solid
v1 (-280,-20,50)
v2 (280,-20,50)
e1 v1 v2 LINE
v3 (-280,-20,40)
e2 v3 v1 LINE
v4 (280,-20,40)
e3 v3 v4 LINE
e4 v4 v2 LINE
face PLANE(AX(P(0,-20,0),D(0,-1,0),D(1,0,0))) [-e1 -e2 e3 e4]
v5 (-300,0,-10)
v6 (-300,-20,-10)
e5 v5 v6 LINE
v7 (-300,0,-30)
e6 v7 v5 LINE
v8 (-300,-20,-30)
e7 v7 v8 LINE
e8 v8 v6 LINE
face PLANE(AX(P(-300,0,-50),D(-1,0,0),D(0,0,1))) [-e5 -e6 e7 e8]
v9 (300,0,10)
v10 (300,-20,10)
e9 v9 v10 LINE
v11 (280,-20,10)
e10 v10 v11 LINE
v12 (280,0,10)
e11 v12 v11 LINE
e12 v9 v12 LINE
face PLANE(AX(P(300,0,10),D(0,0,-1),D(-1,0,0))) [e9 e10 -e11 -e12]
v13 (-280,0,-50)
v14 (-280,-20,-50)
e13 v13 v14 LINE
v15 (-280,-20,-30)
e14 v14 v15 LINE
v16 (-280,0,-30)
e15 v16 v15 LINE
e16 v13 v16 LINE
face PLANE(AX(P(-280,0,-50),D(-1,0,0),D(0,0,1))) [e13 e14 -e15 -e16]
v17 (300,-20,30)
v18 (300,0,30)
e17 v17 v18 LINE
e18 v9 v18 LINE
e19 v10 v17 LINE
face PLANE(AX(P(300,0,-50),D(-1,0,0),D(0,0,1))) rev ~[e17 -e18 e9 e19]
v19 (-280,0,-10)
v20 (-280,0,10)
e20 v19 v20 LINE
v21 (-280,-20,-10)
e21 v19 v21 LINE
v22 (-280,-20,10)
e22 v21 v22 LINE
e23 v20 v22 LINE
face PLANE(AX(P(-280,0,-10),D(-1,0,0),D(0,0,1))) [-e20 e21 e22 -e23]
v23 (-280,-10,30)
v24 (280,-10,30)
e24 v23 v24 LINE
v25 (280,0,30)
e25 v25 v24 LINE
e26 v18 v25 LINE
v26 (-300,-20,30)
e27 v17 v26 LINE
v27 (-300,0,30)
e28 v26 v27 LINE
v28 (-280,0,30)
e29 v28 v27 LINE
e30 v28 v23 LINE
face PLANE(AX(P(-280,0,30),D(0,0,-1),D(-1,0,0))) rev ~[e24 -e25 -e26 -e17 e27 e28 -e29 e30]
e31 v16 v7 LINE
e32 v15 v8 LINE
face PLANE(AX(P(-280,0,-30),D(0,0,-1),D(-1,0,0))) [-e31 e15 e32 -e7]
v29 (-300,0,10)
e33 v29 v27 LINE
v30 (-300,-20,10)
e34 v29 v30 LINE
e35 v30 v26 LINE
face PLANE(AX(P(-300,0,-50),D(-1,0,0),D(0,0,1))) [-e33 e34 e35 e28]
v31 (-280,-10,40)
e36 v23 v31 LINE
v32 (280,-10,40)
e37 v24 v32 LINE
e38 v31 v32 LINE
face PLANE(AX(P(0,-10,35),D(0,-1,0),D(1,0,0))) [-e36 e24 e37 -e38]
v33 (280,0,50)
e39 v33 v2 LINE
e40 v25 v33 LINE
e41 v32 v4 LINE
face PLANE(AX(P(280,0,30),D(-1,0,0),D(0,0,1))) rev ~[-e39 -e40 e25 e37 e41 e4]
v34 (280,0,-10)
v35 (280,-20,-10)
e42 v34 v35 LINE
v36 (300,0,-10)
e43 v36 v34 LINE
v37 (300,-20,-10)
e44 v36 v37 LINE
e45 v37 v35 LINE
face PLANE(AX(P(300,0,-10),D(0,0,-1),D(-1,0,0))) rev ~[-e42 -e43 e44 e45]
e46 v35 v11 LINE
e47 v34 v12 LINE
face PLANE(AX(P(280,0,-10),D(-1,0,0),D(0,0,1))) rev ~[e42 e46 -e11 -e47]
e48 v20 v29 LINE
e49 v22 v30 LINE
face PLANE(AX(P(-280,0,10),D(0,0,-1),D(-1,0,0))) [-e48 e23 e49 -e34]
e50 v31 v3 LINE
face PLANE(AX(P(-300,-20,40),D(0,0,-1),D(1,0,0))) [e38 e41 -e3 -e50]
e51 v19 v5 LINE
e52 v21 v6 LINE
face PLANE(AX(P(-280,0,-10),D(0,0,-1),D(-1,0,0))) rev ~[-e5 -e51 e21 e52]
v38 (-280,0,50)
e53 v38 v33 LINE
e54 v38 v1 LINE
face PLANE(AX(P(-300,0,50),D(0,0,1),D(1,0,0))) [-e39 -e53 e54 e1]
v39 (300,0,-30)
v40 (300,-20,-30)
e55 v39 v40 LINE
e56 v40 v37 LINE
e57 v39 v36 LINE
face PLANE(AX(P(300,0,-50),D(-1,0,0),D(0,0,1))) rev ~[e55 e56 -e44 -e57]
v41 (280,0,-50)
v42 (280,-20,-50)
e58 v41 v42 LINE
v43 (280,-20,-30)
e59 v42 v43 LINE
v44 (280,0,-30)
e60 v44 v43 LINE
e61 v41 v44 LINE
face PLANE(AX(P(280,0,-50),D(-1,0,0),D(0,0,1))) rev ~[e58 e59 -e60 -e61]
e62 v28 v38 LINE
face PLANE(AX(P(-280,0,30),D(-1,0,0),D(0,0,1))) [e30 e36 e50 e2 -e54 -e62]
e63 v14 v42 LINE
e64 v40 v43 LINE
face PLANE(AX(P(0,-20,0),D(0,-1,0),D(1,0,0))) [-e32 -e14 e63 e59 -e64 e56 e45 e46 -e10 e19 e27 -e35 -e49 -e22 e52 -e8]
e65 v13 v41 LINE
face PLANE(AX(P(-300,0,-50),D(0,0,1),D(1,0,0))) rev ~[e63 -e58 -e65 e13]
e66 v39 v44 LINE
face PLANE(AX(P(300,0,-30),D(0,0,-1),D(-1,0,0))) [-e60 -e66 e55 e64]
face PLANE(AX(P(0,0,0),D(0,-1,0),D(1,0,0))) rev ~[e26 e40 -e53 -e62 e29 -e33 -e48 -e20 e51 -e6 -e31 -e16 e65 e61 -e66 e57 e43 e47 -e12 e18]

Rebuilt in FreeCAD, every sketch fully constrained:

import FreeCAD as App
import Part
import Sketcher
Q = App.Units.Quantity

doc = App.newDocument("Part")
body = doc.addObject("PartDesign::Body", "Body")

sketch1 = body.newObject("Sketcher::SketchObject", "Sketch")
sketch1.AttachmentSupport = (doc.getObject("XZ_Plane"), [""])
sketch1.MapMode = "FlatFace"
sketch1.addGeometry(Part.LineSegment(App.Vector(-300, 50, 0), App.Vector(-300, -50, 0)), False)
sketch1.addGeometry(Part.LineSegment(App.Vector(-300, -50, 0), App.Vector(300, -50, 0)), False)
sketch1.addGeometry(Part.LineSegment(App.Vector(300, -50, 0), App.Vector(300, 50, 0)), False)
sketch1.addGeometry(Part.LineSegment(App.Vector(300, 50, 0), App.Vector(-300, 50, 0)), False)
sketch1.addConstraint(Sketcher.Constraint("Coincident", 0, 2, 1, 1))
sketch1.addConstraint(Sketcher.Constraint("Coincident", 1, 2, 2, 1))
sketch1.addConstraint(Sketcher.Constraint("Coincident", 2, 2, 3, 1))
sketch1.addConstraint(Sketcher.Constraint("Coincident", 3, 2, 0, 1))
sketch1.addConstraint(Sketcher.Constraint("Vertical", 0))
sketch1.addConstraint(Sketcher.Constraint("Horizontal", 1))
sketch1.addConstraint(Sketcher.Constraint("Vertical", 2))
sketch1.addConstraint(Sketcher.Constraint("Horizontal", 3))
sketch1.addConstraint(Sketcher.Constraint("Symmetric", 0, 2, 2, 2, -1, 1))
sketch1.addConstraint(Sketcher.Constraint("DistanceX", 1, 1, 1, 2, Q("600 mm")))
sketch1.addConstraint(Sketcher.Constraint("DistanceY", 0, 2, 0, 1, Q("100 mm")))
pad1 = body.newObject("PartDesign::Pad", "Pad")
pad1.Profile = sketch1
pad1.Length = 20

sketch2 = body.newObject("Sketcher::SketchObject", "Sketch001")
sketch2.AttachmentSupport = (doc.getObject("XZ_Plane"), [""])
sketch2.MapMode = "FlatFace"
sketch2.addGeometry(Part.LineSegment(App.Vector(300, -30, 0), App.Vector(300, -50, 0)), False)
sketch2.addGeometry(Part.LineSegment(App.Vector(300, -50, 0), App.Vector(280, -50, 0)), False)
sketch2.addGeometry(Part.LineSegment(App.Vector(280, -50, 0), App.Vector(280, -30, 0)), False)
sketch2.addGeometry(Part.LineSegment(App.Vector(280, -30, 0), App.Vector(300, -30, 0)), False)
sketch2.addGeometry(Part.LineSegment(App.Vector(300, 10, 0), App.Vector(300, -10, 0)), False)
sketch2.addGeometry(Part.LineSegment(App.Vector(300, -10, 0), App.Vector(280, -10, 0)), False)
sketch2.addGeometry(Part.LineSegment(App.Vector(280, -10, 0), App.Vector(280, 10, 0)), False)
sketch2.addGeometry(Part.LineSegment(App.Vector(280, 10, 0), App.Vector(300, 10, 0)), False)
sketch2.addGeometry(Part.LineSegment(App.Vector(-280, 10, 0), App.Vector(-280, -10, 0)), False)
sketch2.addGeometry(Part.LineSegment(App.Vector(-280, -10, 0), App.Vector(-300, -10, 0)), False)
sketch2.addGeometry(Part.LineSegment(App.Vector(-300, -10, 0), App.Vector(-300, 10, 0)), False)
sketch2.addGeometry(Part.LineSegment(App.Vector(-300, 10, 0), App.Vector(-280, 10, 0)), False)
sketch2.addGeometry(Part.LineSegment(App.Vector(-280, -30, 0), App.Vector(-280, -50, 0)), False)
sketch2.addGeometry(Part.LineSegment(App.Vector(-280, -50, 0), App.Vector(-300, -50, 0)), False)
sketch2.addGeometry(Part.LineSegment(App.Vector(-300, -50, 0), App.Vector(-300, -30, 0)), False)
sketch2.addGeometry(Part.LineSegment(App.Vector(-300, -30, 0), App.Vector(-280, -30, 0)), False)
sketch2.addGeometry(Part.LineSegment(App.Vector(-280, 50, 0), App.Vector(-280, 30, 0)), False)
sketch2.addGeometry(Part.LineSegment(App.Vector(-280, 30, 0), App.Vector(-300, 30, 0)), False)
sketch2.addGeometry(Part.LineSegment(App.Vector(-300, 30, 0), App.Vector(-300, 50, 0)), False)
sketch2.addGeometry(Part.LineSegment(App.Vector(-300, 50, 0), App.Vector(-280, 50, 0)), False)
sketch2.addGeometry(Part.LineSegment(App.Vector(300, 50, 0), App.Vector(300, 30, 0)), False)
sketch2.addGeometry(Part.LineSegment(App.Vector(300, 30, 0), App.Vector(280, 30, 0)), False)
sketch2.addGeometry(Part.LineSegment(App.Vector(280, 30, 0), App.Vector(280, 50, 0)), False)
sketch2.addGeometry(Part.LineSegment(App.Vector(280, 50, 0), App.Vector(300, 50, 0)), False)
sketch2.addConstraint(Sketcher.Constraint("Coincident", 0, 2, 1, 1))
sketch2.addConstraint(Sketcher.Constraint("Coincident", 1, 2, 2, 1))
sketch2.addConstraint(Sketcher.Constraint("Coincident", 2, 2, 3, 1))
sketch2.addConstraint(Sketcher.Constraint("Coincident", 3, 2, 0, 1))
sketch2.addConstraint(Sketcher.Constraint("Coincident", 4, 2, 5, 1))
sketch2.addConstraint(Sketcher.Constraint("Coincident", 5, 2, 6, 1))
sketch2.addConstraint(Sketcher.Constraint("Coincident", 6, 2, 7, 1))
sketch2.addConstraint(Sketcher.Constraint("Coincident", 7, 2, 4, 1))
sketch2.addConstraint(Sketcher.Constraint("Coincident", 8, 2, 9, 1))
sketch2.addConstraint(Sketcher.Constraint("Coincident", 9, 2, 10, 1))
sketch2.addConstraint(Sketcher.Constraint("Coincident", 10, 2, 11, 1))
sketch2.addConstraint(Sketcher.Constraint("Coincident", 11, 2, 8, 1))
sketch2.addConstraint(Sketcher.Constraint("Coincident", 12, 2, 13, 1))
sketch2.addConstraint(Sketcher.Constraint("Coincident", 13, 2, 14, 1))
sketch2.addConstraint(Sketcher.Constraint("Coincident", 14, 2, 15, 1))
sketch2.addConstraint(Sketcher.Constraint("Coincident", 15, 2, 12, 1))
sketch2.addConstraint(Sketcher.Constraint("Coincident", 16, 2, 17, 1))
sketch2.addConstraint(Sketcher.Constraint("Coincident", 17, 2, 18, 1))
sketch2.addConstraint(Sketcher.Constraint("Coincident", 18, 2, 19, 1))
sketch2.addConstraint(Sketcher.Constraint("Coincident", 19, 2, 16, 1))
sketch2.addConstraint(Sketcher.Constraint("Coincident", 20, 2, 21, 1))
sketch2.addConstraint(Sketcher.Constraint("Coincident", 21, 2, 22, 1))
sketch2.addConstraint(Sketcher.Constraint("Coincident", 22, 2, 23, 1))
sketch2.addConstraint(Sketcher.Constraint("Coincident", 23, 2, 20, 1))
sketch2.addConstraint(Sketcher.Constraint("Vertical", 0))
sketch2.addConstraint(Sketcher.Constraint("Horizontal", 1))
sketch2.addConstraint(Sketcher.Constraint("Vertical", 2))
sketch2.addConstraint(Sketcher.Constraint("Horizontal", 3))
sketch2.addConstraint(Sketcher.Constraint("Vertical", 4))
sketch2.addConstraint(Sketcher.Constraint("Horizontal", 5))
sketch2.addConstraint(Sketcher.Constraint("Vertical", 6))
sketch2.addConstraint(Sketcher.Constraint("Horizontal", 7))
sketch2.addConstraint(Sketcher.Constraint("Vertical", 8))
sketch2.addConstraint(Sketcher.Constraint("Horizontal", 9))
sketch2.addConstraint(Sketcher.Constraint("Vertical", 10))
sketch2.addConstraint(Sketcher.Constraint("Horizontal", 11))
sketch2.addConstraint(Sketcher.Constraint("Vertical", 12))
sketch2.addConstraint(Sketcher.Constraint("Horizontal", 13))
sketch2.addConstraint(Sketcher.Constraint("Vertical", 14))
sketch2.addConstraint(Sketcher.Constraint("Horizontal", 15))
sketch2.addConstraint(Sketcher.Constraint("Vertical", 16))
sketch2.addConstraint(Sketcher.Constraint("Horizontal", 17))
sketch2.addConstraint(Sketcher.Constraint("Vertical", 18))
sketch2.addConstraint(Sketcher.Constraint("Horizontal", 19))
sketch2.addConstraint(Sketcher.Constraint("Vertical", 20))
sketch2.addConstraint(Sketcher.Constraint("Horizontal", 21))
sketch2.addConstraint(Sketcher.Constraint("Vertical", 22))
sketch2.addConstraint(Sketcher.Constraint("Horizontal", 23))
sketch2.addConstraint(Sketcher.Constraint("Symmetric", 6, 2, 8, 2, -1, 1))
sketch2.addConstraint(Sketcher.Constraint("Symmetric", 4, 2, 10, 2, -1, 1))
sketch2.addConstraint(Sketcher.Constraint("Symmetric", 2, 2, 16, 2, -1, 1))
sketch2.addConstraint(Sketcher.Constraint("Symmetric", 0, 2, 18, 2, -1, 1))
sketch2.addConstraint(Sketcher.Constraint("Symmetric", 14, 2, 20, 2, -1, 1))
sketch2.addConstraint(Sketcher.Constraint("Symmetric", 12, 2, 22, 2, -1, 1))
sketch2.addConstraint(Sketcher.Constraint("Symmetric", 1, 2, 12, 2, -2))
sketch2.addConstraint(Sketcher.Constraint("Symmetric", 3, 2, 14, 2, -2))
sketch2.addConstraint(Sketcher.Constraint("Horizontal", 5, 2, 8, 2))
sketch2.addConstraint(Sketcher.Constraint("Vertical", 3, 2, 4, 2))
sketch2.addConstraint(Sketcher.Constraint("Vertical", 2, 2, 5, 2))
sketch2.addConstraint(Sketcher.Constraint("Equal", 23, 0))
sketch2.addConstraint(Sketcher.Constraint("Equal", 2, 4))
sketch2.addConstraint(Sketcher.Constraint("DistanceX", 1, 2, 1, 1, Q("20 mm")))
sketch2.addConstraint(Sketcher.Constraint("DistanceX", -1, 1, 0, 2, Q("300 mm")))
sketch2.addConstraint(Sketcher.Constraint("DistanceY", 0, 2, -1, 1, Q("50 mm")))
pocket1 = body.newObject("PartDesign::Pocket", "Pocket")
pocket1.Profile = sketch2
pocket1.Type = "ThroughAll"
pocket1.Reversed = True

sketch3 = body.newObject("Sketcher::SketchObject", "Sketch002")
sketch3.AttachmentSupport = (doc.getObject("XZ_Plane"), [""])
sketch3.MapMode = "FlatFace"
sketch3.AttachmentOffset = App.Placement(App.Vector(0, 0, 20), App.Rotation())
sketch3.addGeometry(Part.LineSegment(App.Vector(-300, 40, 0), App.Vector(-300, 30, 0)), False)
sketch3.addGeometry(Part.LineSegment(App.Vector(-300, 30, 0), App.Vector(300, 30, 0)), False)
sketch3.addGeometry(Part.LineSegment(App.Vector(300, 30, 0), App.Vector(300, 40, 0)), False)
sketch3.addGeometry(Part.LineSegment(App.Vector(300, 40, 0), App.Vector(-300, 40, 0)), False)
sketch3.addConstraint(Sketcher.Constraint("Coincident", 0, 2, 1, 1))
sketch3.addConstraint(Sketcher.Constraint("Coincident", 1, 2, 2, 1))
sketch3.addConstraint(Sketcher.Constraint("Coincident", 2, 2, 3, 1))
sketch3.addConstraint(Sketcher.Constraint("Coincident", 3, 2, 0, 1))
sketch3.addConstraint(Sketcher.Constraint("Vertical", 0))
sketch3.addConstraint(Sketcher.Constraint("Horizontal", 1))
sketch3.addConstraint(Sketcher.Constraint("Vertical", 2))
sketch3.addConstraint(Sketcher.Constraint("Horizontal", 3))
sketch3.addConstraint(Sketcher.Constraint("DistanceX", 1, 1, 1, 2, Q("600 mm")))
sketch3.addConstraint(Sketcher.Constraint("DistanceY", 0, 2, 0, 1, Q("10 mm")))
sketch3.addConstraint(Sketcher.Constraint("DistanceX", 0, 2, -1, 1, Q("300 mm")))
sketch3.addConstraint(Sketcher.Constraint("DistanceY", -1, 1, 0, 2, Q("30 mm")))
pocket2 = body.newObject("PartDesign::Pocket", "Pocket001")
pocket2.Profile = sketch3
pocket2.Length = 10

doc.recompute()
